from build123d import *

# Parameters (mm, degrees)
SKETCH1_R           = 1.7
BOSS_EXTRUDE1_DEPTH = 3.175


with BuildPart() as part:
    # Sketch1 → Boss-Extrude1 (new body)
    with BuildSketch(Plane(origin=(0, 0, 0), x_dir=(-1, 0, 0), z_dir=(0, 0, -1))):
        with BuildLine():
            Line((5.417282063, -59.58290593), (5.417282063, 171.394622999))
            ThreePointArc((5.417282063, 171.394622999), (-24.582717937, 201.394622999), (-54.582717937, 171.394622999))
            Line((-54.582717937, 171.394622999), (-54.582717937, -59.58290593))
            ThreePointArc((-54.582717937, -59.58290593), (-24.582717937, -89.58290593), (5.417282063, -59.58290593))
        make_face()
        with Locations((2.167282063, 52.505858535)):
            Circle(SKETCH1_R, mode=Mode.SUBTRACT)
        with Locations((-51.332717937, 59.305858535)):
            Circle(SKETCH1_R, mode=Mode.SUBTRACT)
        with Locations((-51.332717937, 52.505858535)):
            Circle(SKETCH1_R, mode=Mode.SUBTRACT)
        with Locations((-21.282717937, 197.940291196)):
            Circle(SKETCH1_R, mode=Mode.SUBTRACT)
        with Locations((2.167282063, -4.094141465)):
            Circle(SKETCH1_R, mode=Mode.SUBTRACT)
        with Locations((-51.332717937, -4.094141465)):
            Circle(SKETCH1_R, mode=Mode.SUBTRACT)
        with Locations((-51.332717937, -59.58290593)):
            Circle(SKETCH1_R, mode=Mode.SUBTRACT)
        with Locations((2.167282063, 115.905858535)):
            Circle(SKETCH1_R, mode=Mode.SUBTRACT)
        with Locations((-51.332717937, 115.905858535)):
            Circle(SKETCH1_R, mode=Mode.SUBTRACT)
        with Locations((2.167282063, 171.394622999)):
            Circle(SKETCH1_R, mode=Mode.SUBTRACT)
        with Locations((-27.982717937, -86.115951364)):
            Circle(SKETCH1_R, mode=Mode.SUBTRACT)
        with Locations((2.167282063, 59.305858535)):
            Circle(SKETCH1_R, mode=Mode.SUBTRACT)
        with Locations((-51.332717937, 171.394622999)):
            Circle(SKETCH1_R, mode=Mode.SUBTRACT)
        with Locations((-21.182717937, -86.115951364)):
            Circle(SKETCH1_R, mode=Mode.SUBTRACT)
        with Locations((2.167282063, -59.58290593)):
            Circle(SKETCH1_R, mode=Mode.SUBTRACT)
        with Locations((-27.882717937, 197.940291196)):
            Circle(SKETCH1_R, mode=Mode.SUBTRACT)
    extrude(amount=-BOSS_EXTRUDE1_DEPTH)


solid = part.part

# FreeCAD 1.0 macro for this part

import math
import FreeCAD as App
import Part
import Sketcher

doc = App.newDocument("Part")
params = doc.addObject("Spreadsheet::Sheet", "Params")
for row, (alias, value) in enumerate([
    ("sketch1_radius", "30 mm"),
    ("sketch1_diameter", "3.4 mm"),
    ("pad1_length", "3.175 mm"),
], start=1):
    params.set(f"A{row}", alias)
    params.set(f"B{row}", "=" + value)
    params.setAlias(f"B{row}", alias)

body = doc.addObject("PartDesign::Body", "Body")

sketch1 = body.newObject("Sketcher::SketchObject", "Sketch")
sketch1.AttachmentSupport = (doc.getObject("XY_Plane"), [""])
sketch1.MapMode = "FlatFace"
sketch1.addGeometry([
    Part.LineSegment(App.Vector(-5.4, -59.6, 0), App.Vector(-5.4, 171.4, 0)),
    Part.ArcOfCircle(Part.Circle(App.Vector(24.6, 171.4, 0), App.Vector(0, 0, 1), 30), math.radians(0), math.radians(180)),
    Part.LineSegment(App.Vector(54.6, 171.4, 0), App.Vector(54.6, -59.6, 0)),
    Part.ArcOfCircle(Part.Circle(App.Vector(24.6, -59.6, 0), App.Vector(0, 0, 1), 30), math.radians(180), math.radians(360)),
    Part.Circle(App.Vector(51.3, -59.6, 0), App.Vector(0, 0, 1), 1.7),
    Part.Circle(App.Vector(28, -86.1, 0), App.Vector(0, 0, 1), 1.7),
    Part.Circle(App.Vector(51.3, -4.1, 0), App.Vector(0, 0, 1), 1.7),
    Part.Circle(App.Vector(51.3, 52.5, 0), App.Vector(0, 0, 1), 1.7),
    Part.Circle(App.Vector(21.2, -86.1, 0), App.Vector(0, 0, 1), 1.7),
    Part.Circle(App.Vector(-2.2, -59.6, 0), App.Vector(0, 0, 1), 1.7),
    Part.Circle(App.Vector(-2.2, -4.1, 0), App.Vector(0, 0, 1), 1.7),
    Part.Circle(App.Vector(-2.2, 52.5, 0), App.Vector(0, 0, 1), 1.7),
    Part.Circle(App.Vector(51.3, 59.3, 0), App.Vector(0, 0, 1), 1.7),
    Part.Circle(App.Vector(51.3, 115.9, 0), App.Vector(0, 0, 1), 1.7),
    Part.Circle(App.Vector(51.3, 171.4, 0), App.Vector(0, 0, 1), 1.7),
    Part.Circle(App.Vector(27.9, 197.9, 0), App.Vector(0, 0, 1), 1.7),
    Part.Circle(App.Vector(-2.2, 59.3, 0), App.Vector(0, 0, 1), 1.7),
    Part.Circle(App.Vector(-2.2, 115.9, 0), App.Vector(0, 0, 1), 1.7),
    Part.Circle(App.Vector(21.3, 197.9, 0), App.Vector(0, 0, 1), 1.7),
    Part.Circle(App.Vector(-2.2, 171.4, 0), App.Vector(0, 0, 1), 1.7),
], False)
sketch1.addConstraint([
    Sketcher.Constraint("Tangent", 0, 2, 1, 2),
    Sketcher.Constraint("Tangent", 1, 1, 2, 1),
    Sketcher.Constraint("Tangent", 2, 2, 3, 2),
    Sketcher.Constraint("Tangent", 3, 1, 0, 1),
    Sketcher.Constraint("Vertical", 0),
    Sketcher.Constraint("Vertical", 2),
    Sketcher.Constraint("Equal", 4, 5),
    Sketcher.Constraint("Equal", 5, 6),
    Sketcher.Constraint("Equal", 6, 7),
    Sketcher.Constraint("Equal", 7, 8),
    Sketcher.Constraint("Equal", 8, 9),
    Sketcher.Constraint("Equal", 9, 10),
    Sketcher.Constraint("Equal", 10, 11),
    Sketcher.Constraint("Equal", 11, 12),
    Sketcher.Constraint("Equal", 12, 13),
    Sketcher.Constraint("Equal", 13, 14),
    Sketcher.Constraint("Equal", 14, 15),
    Sketcher.Constraint("Equal", 15, 16),
    Sketcher.Constraint("Equal", 16, 17),
    Sketcher.Constraint("Equal", 17, 18),
    Sketcher.Constraint("Equal", 18, 19),
    Sketcher.Constraint("Horizontal", 3, 3, 4, 3),
    Sketcher.Constraint("Horizontal", 5, 3, 8, 3),
    Sketcher.Constraint("Horizontal", 4, 3, 9, 3),
    Sketcher.Constraint("Horizontal", 6, 3, 10, 3),
    Sketcher.Constraint("Horizontal", 7, 3, 11, 3),
    Sketcher.Constraint("Horizontal", 1, 3, 14, 3),
    Sketcher.Constraint("Horizontal", 12, 3, 16, 3),
    Sketcher.Constraint("Horizontal", 13, 3, 17, 3),
    Sketcher.Constraint("Horizontal", 15, 3, 18, 3),
    Sketcher.Constraint("Horizontal", 14, 3, 19, 3),
    Sketcher.Constraint("Vertical", 4, 3, 6, 3),
    Sketcher.Constraint("Vertical", 6, 3, 7, 3),
    Sketcher.Constraint("Vertical", 9, 3, 10, 3),
    Sketcher.Constraint("Vertical", 10, 3, 11, 3),
    Sketcher.Constraint("Vertical", 7, 3, 12, 3),
    Sketcher.Constraint("Vertical", 12, 3, 13, 3),
    Sketcher.Constraint("Vertical", 13, 3, 14, 3),
    Sketcher.Constraint("Vertical", 11, 3, 16, 3),
    Sketcher.Constraint("Vertical", 16, 3, 17, 3),
    Sketcher.Constraint("Vertical", 17, 3, 19, 3),
    Sketcher.Constraint("Radius", 1, 30.0),
    Sketcher.Constraint("Diameter", 4, 3.4),
    Sketcher.Constraint("DistanceY", 6, 3, 13, 3, 120.0),
    Sketcher.Constraint("DistanceX", 3, 3, 5, 3, 3.4),
    Sketcher.Constraint("DistanceY", 6, 3, 7, 3, 56.6),
    Sketcher.Constraint("DistanceX", 8, 3, 5, 3, 6.8),
    Sketcher.Constraint("DistanceX", 9, 3, 4, 3, 53.5),
    Sketcher.Constraint("DistanceY", 7, 3, 12, 3, 6.8),
    Sketcher.Constraint("DistanceX", 1, 3, 15, 3, 3.3),
    Sketcher.Constraint("DistanceX", 18, 3, 15, 3, 6.6),
    Sketcher.Constraint("DistanceX", 3, 3, 4, 3, 26.75),
    Sketcher.Constraint("DistanceY", 0, 1, 0, 2, 230.977529),
    Sketcher.Constraint("DistanceY", 5, 3, -1, 1, 86.115951),
    Sketcher.Constraint("DistanceY", 6, 3, -1, 1, 4.094141),
    Sketcher.Constraint("DistanceY", -1, 1, 15, 3, 197.940291),
    Sketcher.Constraint("DistanceY", 1, 3, 15, 3, 26.545668),
    Sketcher.Constraint("DistanceX", -1, 1, 1, 3, 24.582718),
])
sketch1.setExpression("Constraints[41]", "Params.sketch1_radius")
sketch1.setExpression("Constraints[42]", "Params.sketch1_diameter")
pad1 = body.newObject("PartDesign::Pad", "Pad")
pad1.Profile = sketch1
pad1.setExpression("Length", "Params.pad1_length")

doc.recompute()
